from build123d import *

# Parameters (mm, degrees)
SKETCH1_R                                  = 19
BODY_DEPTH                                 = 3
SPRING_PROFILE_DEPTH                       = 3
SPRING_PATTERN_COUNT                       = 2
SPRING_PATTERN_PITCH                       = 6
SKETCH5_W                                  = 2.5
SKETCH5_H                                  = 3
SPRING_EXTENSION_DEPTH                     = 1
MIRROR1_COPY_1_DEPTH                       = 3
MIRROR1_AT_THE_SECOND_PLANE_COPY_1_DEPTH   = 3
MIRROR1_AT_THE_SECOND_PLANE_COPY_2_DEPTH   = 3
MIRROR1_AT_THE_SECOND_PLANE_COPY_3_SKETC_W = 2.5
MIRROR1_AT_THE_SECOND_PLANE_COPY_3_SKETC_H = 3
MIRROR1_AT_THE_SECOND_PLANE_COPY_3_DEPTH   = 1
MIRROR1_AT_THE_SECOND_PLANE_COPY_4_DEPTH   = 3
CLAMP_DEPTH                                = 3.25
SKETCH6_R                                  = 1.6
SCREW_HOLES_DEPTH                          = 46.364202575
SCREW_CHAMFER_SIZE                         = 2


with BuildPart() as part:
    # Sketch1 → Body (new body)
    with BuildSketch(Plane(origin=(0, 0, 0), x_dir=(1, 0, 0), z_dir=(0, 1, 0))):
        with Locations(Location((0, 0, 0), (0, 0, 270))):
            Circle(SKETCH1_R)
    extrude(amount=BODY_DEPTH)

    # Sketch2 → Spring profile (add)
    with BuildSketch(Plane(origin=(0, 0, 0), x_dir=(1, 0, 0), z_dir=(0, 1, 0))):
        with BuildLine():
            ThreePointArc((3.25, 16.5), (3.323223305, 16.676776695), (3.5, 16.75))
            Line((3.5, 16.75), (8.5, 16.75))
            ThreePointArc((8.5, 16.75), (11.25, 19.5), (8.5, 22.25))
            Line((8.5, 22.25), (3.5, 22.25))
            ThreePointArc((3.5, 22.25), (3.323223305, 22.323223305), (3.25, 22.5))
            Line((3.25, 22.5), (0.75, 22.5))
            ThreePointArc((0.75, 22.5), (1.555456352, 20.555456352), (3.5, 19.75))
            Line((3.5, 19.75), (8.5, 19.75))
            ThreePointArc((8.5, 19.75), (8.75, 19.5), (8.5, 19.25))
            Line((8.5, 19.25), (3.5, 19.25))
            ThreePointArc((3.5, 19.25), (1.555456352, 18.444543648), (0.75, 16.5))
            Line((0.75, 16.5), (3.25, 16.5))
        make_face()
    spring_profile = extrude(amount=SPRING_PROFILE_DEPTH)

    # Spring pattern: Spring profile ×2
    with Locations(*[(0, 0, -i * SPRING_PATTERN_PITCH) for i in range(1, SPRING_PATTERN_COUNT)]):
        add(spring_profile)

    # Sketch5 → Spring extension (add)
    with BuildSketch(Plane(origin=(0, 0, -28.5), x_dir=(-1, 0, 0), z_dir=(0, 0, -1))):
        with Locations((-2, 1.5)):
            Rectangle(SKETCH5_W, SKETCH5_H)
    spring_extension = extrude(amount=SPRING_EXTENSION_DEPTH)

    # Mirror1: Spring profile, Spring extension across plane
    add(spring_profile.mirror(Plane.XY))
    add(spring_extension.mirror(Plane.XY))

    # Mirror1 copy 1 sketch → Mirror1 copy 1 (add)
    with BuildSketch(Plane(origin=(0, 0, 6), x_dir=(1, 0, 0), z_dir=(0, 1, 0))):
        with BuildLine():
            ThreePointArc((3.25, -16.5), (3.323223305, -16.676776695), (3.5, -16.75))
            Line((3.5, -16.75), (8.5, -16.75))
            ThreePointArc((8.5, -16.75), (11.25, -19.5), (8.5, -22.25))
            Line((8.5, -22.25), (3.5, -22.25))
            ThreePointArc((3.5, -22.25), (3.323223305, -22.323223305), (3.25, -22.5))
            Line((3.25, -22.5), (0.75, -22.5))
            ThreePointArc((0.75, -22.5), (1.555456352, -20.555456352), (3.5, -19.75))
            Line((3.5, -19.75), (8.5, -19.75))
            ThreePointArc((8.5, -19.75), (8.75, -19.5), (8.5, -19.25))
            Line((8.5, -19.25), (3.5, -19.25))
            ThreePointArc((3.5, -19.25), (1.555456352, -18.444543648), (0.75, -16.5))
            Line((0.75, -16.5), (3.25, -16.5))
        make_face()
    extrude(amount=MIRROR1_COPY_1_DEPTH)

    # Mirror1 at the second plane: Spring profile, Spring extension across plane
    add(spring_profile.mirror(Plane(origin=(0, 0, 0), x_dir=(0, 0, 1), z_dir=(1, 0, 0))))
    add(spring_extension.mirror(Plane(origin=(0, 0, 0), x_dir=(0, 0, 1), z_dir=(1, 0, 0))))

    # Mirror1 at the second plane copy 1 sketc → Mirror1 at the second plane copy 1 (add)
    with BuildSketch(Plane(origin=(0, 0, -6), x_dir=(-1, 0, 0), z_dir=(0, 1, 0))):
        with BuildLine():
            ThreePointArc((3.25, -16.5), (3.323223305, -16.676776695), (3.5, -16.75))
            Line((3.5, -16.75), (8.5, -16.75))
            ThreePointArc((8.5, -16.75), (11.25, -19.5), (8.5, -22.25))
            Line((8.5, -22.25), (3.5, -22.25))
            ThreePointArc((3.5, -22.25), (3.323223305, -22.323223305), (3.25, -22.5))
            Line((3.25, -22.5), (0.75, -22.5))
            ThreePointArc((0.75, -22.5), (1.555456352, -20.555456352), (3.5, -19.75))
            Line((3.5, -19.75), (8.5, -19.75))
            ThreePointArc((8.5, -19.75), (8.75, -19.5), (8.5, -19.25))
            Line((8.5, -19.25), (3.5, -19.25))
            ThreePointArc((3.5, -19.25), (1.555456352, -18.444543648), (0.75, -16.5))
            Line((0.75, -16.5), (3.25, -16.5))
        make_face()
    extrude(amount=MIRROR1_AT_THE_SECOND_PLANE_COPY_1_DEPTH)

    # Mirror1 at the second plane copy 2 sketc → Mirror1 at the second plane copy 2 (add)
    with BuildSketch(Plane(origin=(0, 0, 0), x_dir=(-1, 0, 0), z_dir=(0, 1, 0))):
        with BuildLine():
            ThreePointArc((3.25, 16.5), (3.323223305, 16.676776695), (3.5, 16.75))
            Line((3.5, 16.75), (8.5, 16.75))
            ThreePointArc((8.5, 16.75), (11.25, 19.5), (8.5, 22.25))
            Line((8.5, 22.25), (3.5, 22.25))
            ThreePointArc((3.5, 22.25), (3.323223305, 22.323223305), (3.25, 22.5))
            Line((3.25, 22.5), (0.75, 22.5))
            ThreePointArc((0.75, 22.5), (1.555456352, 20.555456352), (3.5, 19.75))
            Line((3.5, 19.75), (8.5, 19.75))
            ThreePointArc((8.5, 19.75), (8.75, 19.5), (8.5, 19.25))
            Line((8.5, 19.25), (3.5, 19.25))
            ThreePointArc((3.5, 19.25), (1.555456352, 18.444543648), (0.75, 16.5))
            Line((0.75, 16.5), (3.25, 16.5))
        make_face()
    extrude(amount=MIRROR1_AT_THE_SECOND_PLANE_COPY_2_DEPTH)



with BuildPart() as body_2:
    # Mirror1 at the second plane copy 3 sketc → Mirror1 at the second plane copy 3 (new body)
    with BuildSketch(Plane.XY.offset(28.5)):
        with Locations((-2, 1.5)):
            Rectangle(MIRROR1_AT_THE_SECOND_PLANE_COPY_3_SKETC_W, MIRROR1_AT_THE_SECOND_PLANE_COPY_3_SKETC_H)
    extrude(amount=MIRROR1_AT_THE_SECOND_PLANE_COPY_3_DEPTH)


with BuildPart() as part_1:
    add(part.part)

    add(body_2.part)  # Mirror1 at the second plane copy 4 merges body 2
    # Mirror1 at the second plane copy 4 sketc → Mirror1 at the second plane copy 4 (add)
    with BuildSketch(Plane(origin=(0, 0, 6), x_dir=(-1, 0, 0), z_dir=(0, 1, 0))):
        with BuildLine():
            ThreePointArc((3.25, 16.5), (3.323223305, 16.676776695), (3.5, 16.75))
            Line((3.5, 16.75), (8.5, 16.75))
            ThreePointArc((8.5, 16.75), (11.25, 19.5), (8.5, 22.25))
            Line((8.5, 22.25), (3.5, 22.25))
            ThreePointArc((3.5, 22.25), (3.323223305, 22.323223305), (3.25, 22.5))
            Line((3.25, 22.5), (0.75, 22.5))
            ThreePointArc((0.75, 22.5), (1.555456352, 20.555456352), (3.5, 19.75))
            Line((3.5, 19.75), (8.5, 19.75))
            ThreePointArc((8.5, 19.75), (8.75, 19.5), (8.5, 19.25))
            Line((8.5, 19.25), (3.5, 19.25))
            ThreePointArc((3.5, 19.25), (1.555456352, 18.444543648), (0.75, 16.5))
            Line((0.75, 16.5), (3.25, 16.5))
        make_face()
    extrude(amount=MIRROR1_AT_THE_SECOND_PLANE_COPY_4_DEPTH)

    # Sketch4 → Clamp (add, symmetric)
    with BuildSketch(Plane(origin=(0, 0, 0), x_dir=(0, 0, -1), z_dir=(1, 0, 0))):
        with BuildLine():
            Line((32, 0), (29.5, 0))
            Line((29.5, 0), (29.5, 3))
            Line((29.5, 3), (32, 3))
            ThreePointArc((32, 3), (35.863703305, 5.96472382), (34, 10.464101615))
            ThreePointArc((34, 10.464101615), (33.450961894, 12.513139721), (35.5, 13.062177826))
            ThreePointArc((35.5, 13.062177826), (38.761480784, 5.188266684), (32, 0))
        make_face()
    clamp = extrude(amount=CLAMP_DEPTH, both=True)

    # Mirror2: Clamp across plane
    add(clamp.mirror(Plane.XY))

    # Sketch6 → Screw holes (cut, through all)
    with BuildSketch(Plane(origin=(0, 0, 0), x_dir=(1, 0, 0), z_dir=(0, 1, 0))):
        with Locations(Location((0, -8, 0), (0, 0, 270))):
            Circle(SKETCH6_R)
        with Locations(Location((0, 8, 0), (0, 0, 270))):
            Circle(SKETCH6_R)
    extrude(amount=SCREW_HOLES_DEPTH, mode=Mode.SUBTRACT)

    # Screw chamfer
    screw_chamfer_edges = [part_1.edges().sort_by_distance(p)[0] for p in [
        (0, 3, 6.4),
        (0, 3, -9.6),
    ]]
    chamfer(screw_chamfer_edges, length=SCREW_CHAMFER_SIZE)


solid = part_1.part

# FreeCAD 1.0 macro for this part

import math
import FreeCAD as App
import Part
import Sketcher
from FreeCAD import Vector
Q = App.Units.Quantity


def edges_at(feature, points):
    """Names of the edges that pass closest to the given points."""
    edges = feature.Shape.Edges
    near = lambda p: min(range(len(edges)), key=lambda i: edges[i].distToShape(Part.Vertex(*p))[0])
    return sorted({f"Edge{near(p) + 1}" for p in points})

doc = App.newDocument("Part")
params = doc.addObject("Spreadsheet::Sheet", "Params")
for row, (alias, value) in enumerate([
    ("sketch1_diameter", "38 mm"),
    ("pad1_length", "3 mm"),
    ("sketch2_width", "5 mm"),
    ("sketch2_radius", "0.25 mm"),
    ("sketch2_radius2", "2.75 mm"),
    ("pad2_length", "3 mm"),
    ("linearpattern_pitch", "6 mm"),
    ("sketch3_height", "3 mm"),
    ("sketch3_width", "2.5 mm"),
    ("pad3_length", "1 mm"),
    ("sketch4_width", "5 mm"),
    ("sketch4_radius", "0.25 mm"),
    ("sketch4_radius2", "2.75 mm"),
    ("pad4_length", "3 mm"),
    ("sketch5_width", "5 mm"),
    ("sketch5_radius", "0.25 mm"),
    ("sketch5_radius2", "2.75 mm"),
    ("pad5_length", "3 mm"),
    ("sketch6_width", "5 mm"),
    ("sketch6_radius", "0.25 mm"),
    ("sketch6_radius2", "2.75 mm"),
    ("pad6_length", "3 mm"),
    ("sketch7_height", "3 mm"),
    ("sketch7_width", "2.5 mm"),
    ("pad7_length", "1 mm"),
    ("sketch8_width", "5 mm"),
    ("sketch8_radius", "0.25 mm"),
    ("sketch8_radius2", "2.75 mm"),
    ("pad8_length", "3 mm"),
    ("sketch9_radius", "7 mm"),
    ("sketch9_radius2", "4 mm"),
    ("sketch9_height", "2.5 mm"),
    ("pad9_length", "6.5 mm"),
    ("sketch10_diameter", "3.2 mm"),
    ("chamfer_size", "2 mm"),
], start=1):
    params.set(f"A{row}", alias)
    params.set(f"B{row}", "=" + value)
    params.setAlias(f"B{row}", alias)

body = doc.addObject("PartDesign::Body", "Body")
body.AllowCompound = True

sketch1 = body.newObject("Sketcher::SketchObject", "Sketch")
sketch1.AttachmentSupport = (doc.getObject("XZ_Plane"), [""])
sketch1.MapMode = "FlatFace"
sketch1.addGeometry(Part.Circle(Vector(0, 0, 0), Vector(0, 0, 1), 19), False)
sketch1.addConstraint(Sketcher.Constraint("Coincident", 0, 3, -1, 1))
sketch1.addConstraint(Sketcher.Constraint("Diameter", 0, Q("38 mm")))
sketch1.setExpression("Constraints[1]", "Params.sketch1_diameter")
pad1 = body.newObject("PartDesign::Pad", "Pad")
pad1.Profile = sketch1
pad1.setExpression("Length", "Params.pad1_length")
pad1.Reversed = True

sketch2 = body.newObject("Sketcher::SketchObject", "Sketch001")
sketch2.AttachmentSupport = (doc.getObject("XZ_Plane"), [""])
sketch2.MapMode = "FlatFace"
sketch2.addGeometry(Part.ArcOfCircle(Part.Circle(Vector(3.5, -16.5, 0), Vector(0, 0, 1), 0.25), math.radians(-180), math.radians(-90)), False)
sketch2.addGeometry(Part.LineSegment(Vector(3.5, -16.75, 0), Vector(8.5, -16.75, 0)), False)
sketch2.addGeometry(Part.ArcOfCircle(Part.Circle(Vector(8.5, -19.5, 0), Vector(0, 0, 1), 2.75), math.radians(-90), math.radians(90)), False)
sketch2.addGeometry(Part.LineSegment(Vector(8.5, -22.25, 0), Vector(3.5, -22.25, 0)), False)
sketch2.addGeometry(Part.ArcOfCircle(Part.Circle(Vector(3.5, -22.5, 0), Vector(0, 0, 1), 0.25), math.radians(90), math.radians(180)), False)
sketch2.addGeometry(Part.LineSegment(Vector(3.25, -22.5, 0), Vector(0.75, -22.5, 0)), False)
sketch2.addGeometry(Part.ArcOfCircle(Part.Circle(Vector(3.5, -22.5, 0), Vector(0, 0, 1), 2.75), math.radians(90), math.radians(180)), False)
sketch2.addGeometry(Part.LineSegment(Vector(3.5, -19.75, 0), Vector(8.5, -19.75, 0)), False)
sketch2.addGeometry(Part.ArcOfCircle(Part.Circle(Vector(8.5, -19.5, 0), Vector(0, 0, 1), 0.25), math.radians(-90), math.radians(90)), False)
sketch2.addGeometry(Part.LineSegment(Vector(8.5, -19.25, 0), Vector(3.5, -19.25, 0)), False)
sketch2.addGeometry(Part.ArcOfCircle(Part.Circle(Vector(3.5, -16.5, 0), Vector(0, 0, 1), 2.75), math.radians(-180), math.radians(-90)), False)
sketch2.addGeometry(Part.LineSegment(Vector(0.75, -16.5, 0), Vector(3.25, -16.5, 0)), False)
sketch2.addConstraint(Sketcher.Constraint("Tangent", 0, 2, 1, 1))
sketch2.addConstraint(Sketcher.Constraint("Tangent", 1, 2, 2, 2))
sketch2.addConstraint(Sketcher.Constraint("Tangent", 2, 1, 3, 1))
sketch2.addConstraint(Sketcher.Constraint("Tangent", 3, 2, 4, 1))
sketch2.addConstraint(Sketcher.Constraint("Coincident", 4, 2, 5, 1))
sketch2.addConstraint(Sketcher.Constraint("Coincident", 5, 2, 6, 2))
sketch2.addConstraint(Sketcher.Constraint("Tangent", 6, 1, 7, 1))
sketch2.addConstraint(Sketcher.Constraint("Tangent", 7, 2, 8, 1))
sketch2.addConstraint(Sketcher.Constraint("Tangent", 8, 2, 9, 1))
sketch2.addConstraint(Sketcher.Constraint("Tangent", 9, 2, 10, 2))
sketch2.addConstraint(Sketcher.Constraint("Coincident", 10, 1, 11, 1))
sketch2.addConstraint(Sketcher.Constraint("Coincident", 11, 2, 0, 1))
sketch2.addConstraint(Sketcher.Constraint("Horizontal", 1))
sketch2.addConstraint(Sketcher.Constraint("Horizontal", 3))
sketch2.addConstraint(Sketcher.Constraint("Horizontal", 5))
sketch2.addConstraint(Sketcher.Constraint("Horizontal", 7))
sketch2.addConstraint(Sketcher.Constraint("Horizontal", 9))
sketch2.addConstraint(Sketcher.Constraint("Horizontal", 11))
sketch2.addConstraint(Sketcher.Constraint("Coincident", 6, 3, 4, 3))
sketch2.addConstraint(Sketcher.Constraint("Coincident", 8, 3, 2, 3))
sketch2.addConstraint(Sketcher.Constraint("Coincident", 10, 3, 0, 3))
sketch2.addConstraint(Sketcher.Constraint("Equal", 0, 4))
sketch2.addConstraint(Sketcher.Constraint("Equal", 2, 6))
sketch2.addConstraint(Sketcher.Constraint("Horizontal", 6, 3, 4, 2))
sketch2.addConstraint(Sketcher.Constraint("Horizontal", 0, 3, 10, 1))
sketch2.addConstraint(Sketcher.Constraint("Vertical", 0, 3, 4, 3))
sketch2.addConstraint(Sketcher.Constraint("DistanceX", 1, 1, 1, 2, Q("5 mm")))
sketch2.addConstraint(Sketcher.Constraint("Radius", 0, Q("0.25 mm")))
sketch2.addConstraint(Sketcher.Constraint("Radius", 2, Q("2.75 mm")))
sketch2.addConstraint(Sketcher.Constraint("DistanceX", -1, 1, 0, 3, Q("3.5 mm")))
sketch2.addConstraint(Sketcher.Constraint("DistanceY", 0, 3, -1, 1, Q("16.5 mm")))
sketch2.setExpression("Constraints[26]", "Params.sketch2_width")
sketch2.setExpression("Constraints[27]", "Params.sketch2_radius")
sketch2.setExpression("Constraints[28]", "Params.sketch2_radius2")
pad2 = body.newObject("PartDesign::Pad", "Pad001")
pad2.Profile = sketch2
pad2.setExpression("Length", "Params.pad2_length")
pad2.Reversed = True
doc.recompute()

linearpattern = body.newObject("PartDesign::LinearPattern", "LinearPattern")
linearpattern.Originals = [pad2]
linearpattern.Direction = (doc.getObject("Z_Axis"), [""])
linearpattern.Mode = "offset"
linearpattern.setExpression("Offset", "Params.linearpattern_pitch")
linearpattern.Occurrences = 2
linearpattern.Reversed = True
body.Tip = linearpattern

sketch3 = body.newObject("Sketcher::SketchObject", "Sketch002")
sketch3.AttachmentSupport = (doc.getObject("XY_Plane"), [""])
sketch3.MapMode = "FlatFace"
sketch3.AttachmentOffset = App.Placement(Vector(0, 0, -28.5), App.Rotation())
sketch3.addGeometry(Part.LineSegment(Vector(3.2, 3, 0), Vector(3.2, 0, 0)), False)
sketch3.addGeometry(Part.LineSegment(Vector(3.2, 0, 0), Vector(0.8, 0, 0)), False)
sketch3.addGeometry(Part.LineSegment(Vector(0.8, 0, 0), Vector(0.8, 3, 0)), False)
sketch3.addGeometry(Part.LineSegment(Vector(0.8, 3, 0), Vector(3.2, 3, 0)), False)
sketch3.addConstraint(Sketcher.Constraint("Coincident", 0, 2, 1, 1))
sketch3.addConstraint(Sketcher.Constraint("Coincident", 1, 2, 2, 1))
sketch3.addConstraint(Sketcher.Constraint("Coincident", 2, 2, 3, 1))
sketch3.addConstraint(Sketcher.Constraint("Coincident", 3, 2, 0, 1))
sketch3.addConstraint(Sketcher.Constraint("Vertical", 0))
sketch3.addConstraint(Sketcher.Constraint("Horizontal", 1))
sketch3.addConstraint(Sketcher.Constraint("Vertical", 2))
sketch3.addConstraint(Sketcher.Constraint("Horizontal", 3))
sketch3.addConstraint(Sketcher.Constraint("PointOnObject", 0, 2, -1))
sketch3.addConstraint(Sketcher.Constraint("DistanceY", 0, 2, 0, 1, Q("3 mm")))
sketch3.addConstraint(Sketcher.Constraint("DistanceX", 1, 2, 1, 1, Q("2.5 mm")))
sketch3.addConstraint(Sketcher.Constraint("DistanceX", -1, 1, 0, 2, Q("3.25 mm")))
sketch3.setExpression("Constraints[9]", "Params.sketch3_height")
sketch3.setExpression("Constraints[10]", "Params.sketch3_width")
pad3 = body.newObject("PartDesign::Pad", "Pad002")
pad3.Profile = sketch3
pad3.setExpression("Length", "Params.pad3_length")
pad3.Reversed = True
doc.recompute()

mirrored = body.newObject("PartDesign::Mirrored", "Mirrored")
mirrored.Originals = [pad2, pad3]
mirrored.MirrorPlane = (doc.getObject("XY_Plane"), [""])
body.Tip = mirrored

sketch4 = body.newObject("Sketcher::SketchObject", "Sketch003")
sketch4.AttachmentSupport = (doc.getObject("XZ_Plane"), [""])
sketch4.MapMode = "FlatFace"
sketch4.addGeometry(Part.ArcOfCircle(Part.Circle(Vector(3.5, 22.5, 0), Vector(0, 0, 1), 0.25), math.radians(90), math.radians(180)), False)
sketch4.addGeometry(Part.LineSegment(Vector(3.25, 22.5, 0), Vector(0.75, 22.5, 0)), False)
sketch4.addGeometry(Part.ArcOfCircle(Part.Circle(Vector(3.5, 22.5, 0), Vector(0, 0, 1), 2.75), math.radians(90), math.radians(180)), False)
sketch4.addGeometry(Part.LineSegment(Vector(3.5, 25.25, 0), Vector(8.5, 25.25, 0)), False)
sketch4.addGeometry(Part.ArcOfCircle(Part.Circle(Vector(8.5, 25.5, 0), Vector(0, 0, 1), 0.25), math.radians(-90), math.radians(90)), False)
sketch4.addGeometry(Part.LineSegment(Vector(8.5, 25.75, 0), Vector(3.5, 25.75, 0)), False)
sketch4.addGeometry(Part.ArcOfCircle(Part.Circle(Vector(3.5, 28.5, 0), Vector(0, 0, 1), 2.75), math.radians(-180), math.radians(-90)), False)
sketch4.addGeometry(Part.LineSegment(Vector(0.75, 28.5, 0), Vector(3.25, 28.5, 0)), False)
sketch4.addGeometry(Part.ArcOfCircle(Part.Circle(Vector(3.5, 28.5, 0), Vector(0, 0, 1), 0.25), math.radians(-180), math.radians(-90)), False)
sketch4.addGeometry(Part.LineSegment(Vector(3.5, 28.25, 0), Vector(8.5, 28.25, 0)), False)
sketch4.addGeometry(Part.ArcOfCircle(Part.Circle(Vector(8.5, 25.5, 0), Vector(0, 0, 1), 2.75), math.radians(-90), math.radians(90)), False)
sketch4.addGeometry(Part.LineSegment(Vector(8.5, 22.75, 0), Vector(3.5, 22.75, 0)), False)
sketch4.addConstraint(Sketcher.Constraint("Coincident", 0, 2, 1, 1))
sketch4.addConstraint(Sketcher.Constraint("Coincident", 1, 2, 2, 2))
sketch4.addConstraint(Sketcher.Constraint("Tangent", 2, 1, 3, 1))
sketch4.addConstraint(Sketcher.Constraint("Tangent", 3, 2, 4, 1))
sketch4.addConstraint(Sketcher.Constraint("Tangent", 4, 2, 5, 1))
sketch4.addConstraint(Sketcher.Constraint("Tangent", 5, 2, 6, 2))
sketch4.addConstraint(Sketcher.Constraint("Coincident", 6, 1, 7, 1))
sketch4.addConstraint(Sketcher.Constraint("Coincident", 7, 2, 8, 1))
sketch4.addConstraint(Sketcher.Constraint("Tangent", 8, 2, 9, 1))
sketch4.addConstraint(Sketcher.Constraint("Tangent", 9, 2, 10, 2))
sketch4.addConstraint(Sketcher.Constraint("Tangent", 10, 1, 11, 1))
sketch4.addConstraint(Sketcher.Constraint("Tangent", 11, 2, 0, 1))
sketch4.addConstraint(Sketcher.Constraint("Horizontal", 1))
sketch4.addConstraint(Sketcher.Constraint("Horizontal", 3))
sketch4.addConstraint(Sketcher.Constraint("Horizontal", 5))
sketch4.addConstraint(Sketcher.Constraint("Horizontal", 7))
sketch4.addConstraint(Sketcher.Constraint("Horizontal", 9))
sketch4.addConstraint(Sketcher.Constraint("Horizontal", 11))
sketch4.addConstraint(Sketcher.Constraint("Coincident", 2, 3, 0, 3))
sketch4.addConstraint(Sketcher.Constraint("Coincident", 8, 3, 6, 3))
sketch4.addConstraint(Sketcher.Constraint("Coincident", 10, 3, 4, 3))
sketch4.addConstraint(Sketcher.Constraint("Equal", 0, 4))
sketch4.addConstraint(Sketcher.Constraint("Equal", 2, 6))
sketch4.addConstraint(Sketcher.Constraint("Horizontal", 2, 3, 0, 2))
sketch4.addConstraint(Sketcher.Constraint("Horizontal", 8, 3, 6, 1))
sketch4.addConstraint(Sketcher.Constraint("Vertical", 2, 3, 6, 3))
sketch4.addConstraint(Sketcher.Constraint("DistanceX", 3, 1, 3, 2, Q("5 mm")))
sketch4.addConstraint(Sketcher.Constraint("Radius", 0, Q("0.25 mm")))
sketch4.addConstraint(Sketcher.Constraint("Radius", 2, Q("2.75 mm")))
sketch4.addConstraint(Sketcher.Constraint("DistanceX", -1, 1, 0, 3, Q("3.5 mm")))
sketch4.addConstraint(Sketcher.Constraint("DistanceY", -1, 1, 0, 3, Q("22.5 mm")))
sketch4.setExpression("Constraints[26]", "Params.sketch4_width")
sketch4.setExpression("Constraints[27]", "Params.sketch4_radius")
sketch4.setExpression("Constraints[28]", "Params.sketch4_radius2")
pad4 = body.newObject("PartDesign::Pad", "Pad003")
pad4.Profile = sketch4
pad4.setExpression("Length", "Params.pad4_length")
pad4.Reversed = True
doc.recompute()

mirrored2 = body.newObject("PartDesign::Mirrored", "Mirrored001")
mirrored2.Originals = [pad2, pad3]
mirrored2.MirrorPlane = (doc.getObject("YZ_Plane"), [""])
body.Tip = mirrored2

sketch5 = body.newObject("Sketcher::SketchObject", "Sketch004")
sketch5.AttachmentSupport = (doc.getObject("XZ_Plane"), [""])
sketch5.MapMode = "FlatFace"
sketch5.addGeometry(Part.ArcOfCircle(Part.Circle(Vector(-3.5, -22.5, 0), Vector(0, 0, 1), 0.25), math.radians(-90), math.radians(0)), False)
sketch5.addGeometry(Part.LineSegment(Vector(-3.25, -22.5, 0), Vector(-0.75, -22.5, 0)), False)
sketch5.addGeometry(Part.ArcOfCircle(Part.Circle(Vector(-3.5, -22.5, 0), Vector(0, 0, 1), 2.75), math.radians(-90), math.radians(0)), False)
sketch5.addGeometry(Part.LineSegment(Vector(-3.5, -25.25, 0), Vector(-8.5, -25.25, 0)), False)
sketch5.addGeometry(Part.ArcOfCircle(Part.Circle(Vector(-8.5, -25.5, 0), Vector(0, 0, 1), 0.25), math.radians(90), math.radians(270)), False)
sketch5.addGeometry(Part.LineSegment(Vector(-8.5, -25.75, 0), Vector(-3.5, -25.75, 0)), False)
sketch5.addGeometry(Part.ArcOfCircle(Part.Circle(Vector(-3.5, -28.5, 0), Vector(0, 0, 1), 2.75), math.radians(0), math.radians(90)), False)
sketch5.addGeometry(Part.LineSegment(Vector(-0.75, -28.5, 0), Vector(-3.25, -28.5, 0)), False)
sketch5.addGeometry(Part.ArcOfCircle(Part.Circle(Vector(-3.5, -28.5, 0), Vector(0, 0, 1), 0.25), math.radians(0), math.radians(90)), False)
sketch5.addGeometry(Part.LineSegment(Vector(-3.5, -28.25, 0), Vector(-8.5, -28.25, 0)), False)
sketch5.addGeometry(Part.ArcOfCircle(Part.Circle(Vector(-8.5, -25.5, 0), Vector(0, 0, 1), 2.75), math.radians(90), math.radians(270)), False)
sketch5.addGeometry(Part.LineSegment(Vector(-8.5, -22.75, 0), Vector(-3.5, -22.75, 0)), False)
sketch5.addConstraint(Sketcher.Constraint("Coincident", 0, 2, 1, 1))
sketch5.addConstraint(Sketcher.Constraint("Coincident", 1, 2, 2, 2))
sketch5.addConstraint(Sketcher.Constraint("Tangent", 2, 1, 3, 1))
sketch5.addConstraint(Sketcher.Constraint("Tangent", 3, 2, 4, 1))
sketch5.addConstraint(Sketcher.Constraint("Tangent", 4, 2, 5, 1))
sketch5.addConstraint(Sketcher.Constraint("Tangent", 5, 2, 6, 2))
sketch5.addConstraint(Sketcher.Constraint("Coincident", 6, 1, 7, 1))
sketch5.addConstraint(Sketcher.Constraint("Coincident", 7, 2, 8, 1))
sketch5.addConstraint(Sketcher.Constraint("Tangent", 8, 2, 9, 1))
sketch5.addConstraint(Sketcher.Constraint("Tangent", 9, 2, 10, 2))
sketch5.addConstraint(Sketcher.Constraint("Tangent", 10, 1, 11, 1))
sketch5.addConstraint(Sketcher.Constraint("Tangent", 11, 2, 0, 1))
sketch5.addConstraint(Sketcher.Constraint("Horizontal", 1))
sketch5.addConstraint(Sketcher.Constraint("Horizontal", 3))
sketch5.addConstraint(Sketcher.Constraint("Horizontal", 5))
sketch5.addConstraint(Sketcher.Constraint("Horizontal", 7))
sketch5.addConstraint(Sketcher.Constraint("Horizontal", 9))
sketch5.addConstraint(Sketcher.Constraint("Horizontal", 11))
sketch5.addConstraint(Sketcher.Constraint("Coincident", 2, 3, 0, 3))
sketch5.addConstraint(Sketcher.Constraint("Coincident", 8, 3, 6, 3))
sketch5.addConstraint(Sketcher.Constraint("Coincident", 10, 3, 4, 3))
sketch5.addConstraint(Sketcher.Constraint("Equal", 0, 4))
sketch5.addConstraint(Sketcher.Constraint("Equal", 2, 6))
sketch5.addConstraint(Sketcher.Constraint("Horizontal", 2, 3, 0, 2))
sketch5.addConstraint(Sketcher.Constraint("Horizontal", 8, 3, 6, 1))
sketch5.addConstraint(Sketcher.Constraint("Vertical", 2, 3, 6, 3))
sketch5.addConstraint(Sketcher.Constraint("DistanceX", 3, 2, 3, 1, Q("5 mm")))
sketch5.addConstraint(Sketcher.Constraint("Radius", 0, Q("0.25 mm")))
sketch5.addConstraint(Sketcher.Constraint("Radius", 2, Q("2.75 mm")))
sketch5.addConstraint(Sketcher.Constraint("DistanceX", 0, 3, -1, 1, Q("3.5 mm")))
sketch5.addConstraint(Sketcher.Constraint("DistanceY", 0, 3, -1, 1, Q("22.5 mm")))
sketch5.setExpression("Constraints[26]", "Params.sketch5_width")
sketch5.setExpression("Constraints[27]", "Params.sketch5_radius")
sketch5.setExpression("Constraints[28]", "Params.sketch5_radius2")
pad5 = body.newObject("PartDesign::Pad", "Pad004")
pad5.Profile = sketch5
pad5.setExpression("Length", "Params.pad5_length")
pad5.Reversed = True

sketch6 = body.newObject("Sketcher::SketchObject", "Sketch005")
sketch6.AttachmentSupport = (doc.getObject("XZ_Plane"), [""])
sketch6.MapMode = "FlatFace"
sketch6.addGeometry(Part.ArcOfCircle(Part.Circle(Vector(-3.5, 16.5, 0), Vector(0, 0, 1), 0.25), math.radians(0), math.radians(90)), False)
sketch6.addGeometry(Part.LineSegment(Vector(-3.5, 16.75, 0), Vector(-8.5, 16.75, 0)), False)
sketch6.addGeometry(Part.ArcOfCircle(Part.Circle(Vector(-8.5, 19.5, 0), Vector(0, 0, 1), 2.75), math.radians(90), math.radians(270)), False)
sketch6.addGeometry(Part.LineSegment(Vector(-8.5, 22.25, 0), Vector(-3.5, 22.25, 0)), False)
sketch6.addGeometry(Part.ArcOfCircle(Part.Circle(Vector(-3.5, 22.5, 0), Vector(0, 0, 1), 0.25), math.radians(-90), math.radians(0)), False)
sketch6.addGeometry(Part.LineSegment(Vector(-3.25, 22.5, 0), Vector(-0.75, 22.5, 0)), False)
sketch6.addGeometry(Part.ArcOfCircle(Part.Circle(Vector(-3.5, 22.5, 0), Vector(0, 0, 1), 2.75), math.radians(-90), math.radians(0)), False)
sketch6.addGeometry(Part.LineSegment(Vector(-3.5, 19.75, 0), Vector(-8.5, 19.75, 0)), False)
sketch6.addGeometry(Part.ArcOfCircle(Part.Circle(Vector(-8.5, 19.5, 0), Vector(0, 0, 1), 0.25), math.radians(90), math.radians(270)), False)
sketch6.addGeometry(Part.LineSegment(Vector(-8.5, 19.25, 0), Vector(-3.5, 19.25, 0)), False)
sketch6.addGeometry(Part.ArcOfCircle(Part.Circle(Vector(-3.5, 16.5, 0), Vector(0, 0, 1), 2.75), math.radians(0), math.radians(90)), False)
sketch6.addGeometry(Part.LineSegment(Vector(-0.75, 16.5, 0), Vector(-3.25, 16.5, 0)), False)
sketch6.addConstraint(Sketcher.Constraint("Tangent", 0, 2, 1, 1))
sketch6.addConstraint(Sketcher.Constraint("Tangent", 1, 2, 2, 2))
sketch6.addConstraint(Sketcher.Constraint("Tangent", 2, 1, 3, 1))
sketch6.addConstraint(Sketcher.Constraint("Tangent", 3, 2, 4, 1))
sketch6.addConstraint(Sketcher.Constraint("Coincident", 4, 2, 5, 1))
sketch6.addConstraint(Sketcher.Constraint("Coincident", 5, 2, 6, 2))
sketch6.addConstraint(Sketcher.Constraint("Tangent", 6, 1, 7, 1))
sketch6.addConstraint(Sketcher.Constraint("Tangent", 7, 2, 8, 1))
sketch6.addConstraint(Sketcher.Constraint("Tangent", 8, 2, 9, 1))
sketch6.addConstraint(Sketcher.Constraint("Tangent", 9, 2, 10, 2))
sketch6.addConstraint(Sketcher.Constraint("Coincident", 10, 1, 11, 1))
sketch6.addConstraint(Sketcher.Constraint("Coincident", 11, 2, 0, 1))
sketch6.addConstraint(Sketcher.Constraint("Horizontal", 1))
sketch6.addConstraint(Sketcher.Constraint("Horizontal", 3))
sketch6.addConstraint(Sketcher.Constraint("Horizontal", 5))
sketch6.addConstraint(Sketcher.Constraint("Horizontal", 7))
sketch6.addConstraint(Sketcher.Constraint("Horizontal", 9))
sketch6.addConstraint(Sketcher.Constraint("Horizontal", 11))
sketch6.addConstraint(Sketcher.Constraint("Coincident", 6, 3, 4, 3))
sketch6.addConstraint(Sketcher.Constraint("Coincident", 8, 3, 2, 3))
sketch6.addConstraint(Sketcher.Constraint("Coincident", 10, 3, 0, 3))
sketch6.addConstraint(Sketcher.Constraint("Equal", 0, 4))
sketch6.addConstraint(Sketcher.Constraint("Equal", 2, 6))
sketch6.addConstraint(Sketcher.Constraint("Horizontal", 6, 3, 4, 2))
sketch6.addConstraint(Sketcher.Constraint("Horizontal", 0, 3, 10, 1))
sketch6.addConstraint(Sketcher.Constraint("Vertical", 0, 3, 4, 3))
sketch6.addConstraint(Sketcher.Constraint("DistanceX", 1, 2, 1, 1, Q("5 mm")))
sketch6.addConstraint(Sketcher.Constraint("Radius", 0, Q("0.25 mm")))
sketch6.addConstraint(Sketcher.Constraint("Radius", 2, Q("2.75 mm")))
sketch6.addConstraint(Sketcher.Constraint("DistanceX", 0, 3, -1, 1, Q("3.5 mm")))
sketch6.addConstraint(Sketcher.Constraint("DistanceY", -1, 1, 0, 3, Q("16.5 mm")))
sketch6.setExpression("Constraints[26]", "Params.sketch6_width")
sketch6.setExpression("Constraints[27]", "Params.sketch6_radius")
sketch6.setExpression("Constraints[28]", "Params.sketch6_radius2")
pad6 = body.newObject("PartDesign::Pad", "Pad005")
pad6.Profile = sketch6
pad6.setExpression("Length", "Params.pad6_length")
pad6.Reversed = True
body2 = doc.addObject("PartDesign::Body", "Body001")

sketch7 = body2.newObject("Sketcher::SketchObject", "Sketch006")
sketch7.AttachmentSupport = (doc.getObject("XY_Plane001"), [""])
sketch7.MapMode = "FlatFace"
sketch7.AttachmentOffset = App.Placement(Vector(0, 0, 28.5), App.Rotation())
sketch7.addGeometry(Part.LineSegment(Vector(-3.2, 3, 0), Vector(-3.2, 0, 0)), False)
sketch7.addGeometry(Part.LineSegment(Vector(-3.2, 0, 0), Vector(-0.8, 0, 0)), False)
sketch7.addGeometry(Part.LineSegment(Vector(-0.8, 0, 0), Vector(-0.8, 3, 0)), False)
sketch7.addGeometry(Part.LineSegment(Vector(-0.8, 3, 0), Vector(-3.2, 3, 0)), False)
sketch7.addConstraint(Sketcher.Constraint("Coincident", 0, 2, 1, 1))
sketch7.addConstraint(Sketcher.Constraint("Coincident", 1, 2, 2, 1))
sketch7.addConstraint(Sketcher.Constraint("Coincident", 2, 2, 3, 1))
sketch7.addConstraint(Sketcher.Constraint("Coincident", 3, 2, 0, 1))
sketch7.addConstraint(Sketcher.Constraint("Vertical", 0))
sketch7.addConstraint(Sketcher.Constraint("Horizontal", 1))
sketch7.addConstraint(Sketcher.Constraint("Vertical", 2))
sketch7.addConstraint(Sketcher.Constraint("Horizontal", 3))
sketch7.addConstraint(Sketcher.Constraint("PointOnObject", 0, 2, -1))
sketch7.addConstraint(Sketcher.Constraint("DistanceY", 0, 2, 0, 1, Q("3 mm")))
sketch7.addConstraint(Sketcher.Constraint("DistanceX", 1, 1, 1, 2, Q("2.5 mm")))
sketch7.addConstraint(Sketcher.Constraint("DistanceX", 0, 2, -1, 1, Q("3.25 mm")))
sketch7.setExpression("Constraints[9]", "Params.sketch7_height")
sketch7.setExpression("Constraints[10]", "Params.sketch7_width")
pad7 = body2.newObject("PartDesign::Pad", "Pad006")
pad7.Profile = sketch7
pad7.setExpression("Length", "Params.pad7_length")
body.AllowCompound = True
doc.recompute()

boolean = body.newObject("PartDesign::Boolean", "Boolean")
boolean.Type = "Fuse"
boolean.addObjects([body2])

sketch8 = body.newObject("Sketcher::SketchObject", "Sketch007")
sketch8.AttachmentSupport = (doc.getObject("XZ_Plane"), [""])
sketch8.MapMode = "FlatFace"
sketch8.addGeometry(Part.ArcOfCircle(Part.Circle(Vector(-3.5, 22.5, 0), Vector(0, 0, 1), 0.25), math.radians(0), math.radians(90)), False)
sketch8.addGeometry(Part.LineSegment(Vector(-3.5, 22.75, 0), Vector(-8.5, 22.75, 0)), False)
sketch8.addGeometry(Part.ArcOfCircle(Part.Circle(Vector(-8.5, 25.5, 0), Vector(0, 0, 1), 2.75), math.radians(90), math.radians(270)), False)
sketch8.addGeometry(Part.LineSegment(Vector(-8.5, 28.25, 0), Vector(-3.5, 28.25, 0)), False)
sketch8.addGeometry(Part.ArcOfCircle(Part.Circle(Vector(-3.5, 28.5, 0), Vector(0, 0, 1), 0.25), math.radians(-90), math.radians(0)), False)
sketch8.addGeometry(Part.LineSegment(Vector(-3.25, 28.5, 0), Vector(-0.75, 28.5, 0)), False)
sketch8.addGeometry(Part.ArcOfCircle(Part.Circle(Vector(-3.5, 28.5, 0), Vector(0, 0, 1), 2.75), math.radians(-90), math.radians(0)), False)
sketch8.addGeometry(Part.LineSegment(Vector(-3.5, 25.75, 0), Vector(-8.5, 25.75, 0)), False)
sketch8.addGeometry(Part.ArcOfCircle(Part.Circle(Vector(-8.5, 25.5, 0), Vector(0, 0, 1), 0.25), math.radians(90), math.radians(270)), False)
sketch8.addGeometry(Part.LineSegment(Vector(-8.5, 25.25, 0), Vector(-3.5, 25.25, 0)), False)
sketch8.addGeometry(Part.ArcOfCircle(Part.Circle(Vector(-3.5, 22.5, 0), Vector(0, 0, 1), 2.75), math.radians(0), math.radians(90)), False)
sketch8.addGeometry(Part.LineSegment(Vector(-0.75, 22.5, 0), Vector(-3.25, 22.5, 0)), False)
sketch8.addConstraint(Sketcher.Constraint("Tangent", 0, 2, 1, 1))
sketch8.addConstraint(Sketcher.Constraint("Tangent", 1, 2, 2, 2))
sketch8.addConstraint(Sketcher.Constraint("Tangent", 2, 1, 3, 1))
sketch8.addConstraint(Sketcher.Constraint("Tangent", 3, 2, 4, 1))
sketch8.addConstraint(Sketcher.Constraint("Coincident", 4, 2, 5, 1))
sketch8.addConstraint(Sketcher.Constraint("Coincident", 5, 2, 6, 2))
sketch8.addConstraint(Sketcher.Constraint("Tangent", 6, 1, 7, 1))
sketch8.addConstraint(Sketcher.Constraint("Tangent", 7, 2, 8, 1))
sketch8.addConstraint(Sketcher.Constraint("Tangent", 8, 2, 9, 1))
sketch8.addConstraint(Sketcher.Constraint("Tangent", 9, 2, 10, 2))
sketch8.addConstraint(Sketcher.Constraint("Coincident", 10, 1, 11, 1))
sketch8.addConstraint(Sketcher.Constraint("Coincident", 11, 2, 0, 1))
sketch8.addConstraint(Sketcher.Constraint("Horizontal", 1))
sketch8.addConstraint(Sketcher.Constraint("Horizontal", 3))
sketch8.addConstraint(Sketcher.Constraint("Horizontal", 5))
sketch8.addConstraint(Sketcher.Constraint("Horizontal", 7))
sketch8.addConstraint(Sketcher.Constraint("Horizontal", 9))
sketch8.addConstraint(Sketcher.Constraint("Horizontal", 11))
sketch8.addConstraint(Sketcher.Constraint("Coincident", 6, 3, 4, 3))
sketch8.addConstraint(Sketcher.Constraint("Coincident", 8, 3, 2, 3))
sketch8.addConstraint(Sketcher.Constraint("Coincident", 10, 3, 0, 3))
sketch8.addConstraint(Sketcher.Constraint("Equal", 0, 4))
sketch8.addConstraint(Sketcher.Constraint("Equal", 2, 6))
sketch8.addConstraint(Sketcher.Constraint("Horizontal", 6, 3, 4, 2))
sketch8.addConstraint(Sketcher.Constraint("Horizontal", 0, 3, 10, 1))
sketch8.addConstraint(Sketcher.Constraint("Vertical", 0, 3, 4, 3))
sketch8.addConstraint(Sketcher.Constraint("DistanceX", 1, 2, 1, 1, Q("5 mm")))
sketch8.addConstraint(Sketcher.Constraint("Radius", 0, Q("0.25 mm")))
sketch8.addConstraint(Sketcher.Constraint("Radius", 2, Q("2.75 mm")))
sketch8.addConstraint(Sketcher.Constraint("DistanceX", 0, 3, -1, 1, Q("3.5 mm")))
sketch8.addConstraint(Sketcher.Constraint("DistanceY", -1, 1, 0, 3, Q("22.5 mm")))
sketch8.setExpression("Constraints[26]", "Params.sketch8_width")
sketch8.setExpression("Constraints[27]", "Params.sketch8_radius")
sketch8.setExpression("Constraints[28]", "Params.sketch8_radius2")
pad8 = body.newObject("PartDesign::Pad", "Pad007")
pad8.Profile = sketch8
pad8.setExpression("Length", "Params.pad8_length")
pad8.Reversed = True

sketch9 = body.newObject("Sketcher::SketchObject", "Sketch008")
sketch9.AttachmentSupport = (doc.getObject("YZ_Plane"), [""])
sketch9.MapMode = "FlatFace"
sketch9.addGeometry(Part.LineSegment(Vector(0, -29.5, 0), Vector(0, -32, 0)), False)
sketch9.addGeometry(Part.ArcOfCircle(Part.Circle(Vector(7, -32, 0), Vector(0, 0, 1), 7), math.radians(180), math.radians(330)), False)
sketch9.addGeometry(Part.ArcOfCircle(Part.Circle(Vector(11.8, -34.7, 0), Vector(0, 0, 1), 1.5), math.radians(-30), math.radians(150)), False)
sketch9.addGeometry(Part.ArcOfCircle(Part.Circle(Vector(7, -32, 0), Vector(0, 0, 1), 4), math.radians(180), math.radians(330)), False)
sketch9.addGeometry(Part.LineSegment(Vector(3, -32, 0), Vector(3, -29.5, 0)), False)
sketch9.addGeometry(Part.LineSegment(Vector(3, -29.5, 0), Vector(0, -29.5, 0)), False)
sketch9.addConstraint(Sketcher.Constraint("Tangent", 0, 2, 1, 1))
sketch9.addConstraint(Sketcher.Constraint("Tangent", 1, 2, 2, 1))
sketch9.addConstraint(Sketcher.Constraint("Tangent", 2, 2, 3, 2))
sketch9.addConstraint(Sketcher.Constraint("Tangent", 3, 1, 4, 1))
sketch9.addConstraint(Sketcher.Constraint("Coincident", 4, 2, 5, 1))
sketch9.addConstraint(Sketcher.Constraint("Coincident", 5, 2, 0, 1))
sketch9.addConstraint(Sketcher.Constraint("Vertical", 0))
sketch9.addConstraint(Sketcher.Constraint("Vertical", 4))
sketch9.addConstraint(Sketcher.Constraint("Horizontal", 5))
sketch9.addConstraint(Sketcher.Constraint("Coincident", 3, 3, 1, 3))
sketch9.addConstraint(Sketcher.Constraint("PointOnObject", 0, 2, -2))
sketch9.addConstraint(Sketcher.Constraint("Radius", 1, Q("7 mm")))
sketch9.addConstraint(Sketcher.Constraint("Radius", 3, Q("4 mm")))
sketch9.addConstraint(Sketcher.Constraint("DistanceY", 0, 2, 0, 1, Q("2.5 mm")))
sketch9.addConstraint(Sketcher.Constraint("DistanceY", 1, 3, -1, 1, Q("32 mm")))
sketch9.addConstraint(Sketcher.Constraint("DistanceY", 2, 2, -1, 1, Q("34 mm")))
sketch9.setExpression("Constraints[11]", "Params.sketch9_radius")
sketch9.setExpression("Constraints[12]", "Params.sketch9_radius2")
sketch9.setExpression("Constraints[13]", "Params.sketch9_height")
pad9 = body.newObject("PartDesign::Pad", "Pad008")
pad9.Profile = sketch9
pad9.setExpression("Length", "Params.pad9_length")
pad9.Midplane = True
doc.recompute()

mirrored3 = body.newObject("PartDesign::Mirrored", "Mirrored002")
mirrored3.Originals = [pad9]
mirrored3.MirrorPlane = (doc.getObject("XY_Plane"), [""])
body.Tip = mirrored3

sketch10 = body.newObject("Sketcher::SketchObject", "Sketch009")
sketch10.AttachmentSupport = (doc.getObject("XZ_Plane"), [""])
sketch10.MapMode = "FlatFace"
sketch10.addGeometry(Part.Circle(Vector(0, 8, 0), Vector(0, 0, 1), 1.6), False)
sketch10.addGeometry(Part.Circle(Vector(0, -8, 0), Vector(0, 0, 1), 1.6), False)
sketch10.addConstraint(Sketcher.Constraint("Equal", 0, 1))
sketch10.addConstraint(Sketcher.Constraint("Symmetric", 0, 3, 1, 3, -1, 1))
sketch10.addConstraint(Sketcher.Constraint("PointOnObject", 0, 3, -2))
sketch10.addConstraint(Sketcher.Constraint("Diameter", 0, Q("3.2 mm")))
sketch10.addConstraint(Sketcher.Constraint("DistanceY", -1, 1, 0, 3, Q("8 mm")))
sketch10.setExpression("Constraints[3]", "Params.sketch10_diameter")
pocket1 = body.newObject("PartDesign::Pocket", "Pocket")
pocket1.Profile = sketch10
pocket1.Type = "ThroughAll"
doc.recompute()

chamfer = body.newObject("PartDesign::Chamfer", "Chamfer")
chamfer.Base = (pocket1, edges_at(pocket1, [(0, 3, 6.4), (0, 3, -9.6)]))
chamfer.setExpression("Size", "Params.chamfer_size")

doc.recompute()
